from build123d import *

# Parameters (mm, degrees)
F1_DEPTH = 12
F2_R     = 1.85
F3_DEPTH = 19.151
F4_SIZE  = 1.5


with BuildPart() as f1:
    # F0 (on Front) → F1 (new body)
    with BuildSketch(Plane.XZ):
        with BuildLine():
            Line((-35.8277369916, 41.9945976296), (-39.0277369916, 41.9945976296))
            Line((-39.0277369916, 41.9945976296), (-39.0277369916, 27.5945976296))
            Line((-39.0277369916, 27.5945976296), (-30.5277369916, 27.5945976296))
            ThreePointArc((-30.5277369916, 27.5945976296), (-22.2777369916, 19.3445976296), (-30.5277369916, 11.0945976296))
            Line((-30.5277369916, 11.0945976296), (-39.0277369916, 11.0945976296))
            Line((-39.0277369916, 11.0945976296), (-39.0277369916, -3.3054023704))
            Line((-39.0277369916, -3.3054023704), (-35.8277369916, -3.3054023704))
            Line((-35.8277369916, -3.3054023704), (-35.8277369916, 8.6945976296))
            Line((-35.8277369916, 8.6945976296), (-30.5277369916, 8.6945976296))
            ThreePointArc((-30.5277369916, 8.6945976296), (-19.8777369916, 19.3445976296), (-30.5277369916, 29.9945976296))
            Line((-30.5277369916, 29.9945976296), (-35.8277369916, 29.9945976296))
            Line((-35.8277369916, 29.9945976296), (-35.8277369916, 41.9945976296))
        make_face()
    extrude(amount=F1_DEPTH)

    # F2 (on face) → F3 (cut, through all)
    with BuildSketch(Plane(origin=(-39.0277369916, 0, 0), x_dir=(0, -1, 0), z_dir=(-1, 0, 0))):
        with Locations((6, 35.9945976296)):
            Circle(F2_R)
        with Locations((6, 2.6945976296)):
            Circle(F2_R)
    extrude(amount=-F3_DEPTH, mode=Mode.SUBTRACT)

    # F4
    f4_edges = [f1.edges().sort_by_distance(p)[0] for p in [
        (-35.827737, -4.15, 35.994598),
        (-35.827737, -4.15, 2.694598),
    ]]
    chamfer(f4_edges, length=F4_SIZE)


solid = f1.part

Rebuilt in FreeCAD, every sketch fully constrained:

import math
import FreeCAD as App
import Part
import Sketcher


def edges_at(feature, points):
    """Names of the edges that pass closest to the given points."""
    edges = feature.Shape.Edges
    near = lambda p: min(range(len(edges)), key=lambda i: edges[i].distToShape(Part.Vertex(*p))[0])
    return sorted({f"Edge{near(p) + 1}" for p in points})

doc = App.newDocument("Part")
params = doc.addObject("Spreadsheet::Sheet", "Params")
for row, (alias, value) in enumerate([
    ("sketch1_height", "12 mm"),
    ("sketch1_radius", "8.25 mm"),
    ("sketch1_radius2", "10.65 mm"),
    ("sketch1_width", "3.2 mm"),
    ("sketch1_width2", "8.5 mm"),
    ("pad1_length", "12 mm"),
    ("sketch2_diameter", "3.7 mm"),
    ("chamfer_size", "1.5 mm"),
], start=1):
    params.set(f"A{row}", alias)
    params.set(f"B{row}", "=" + value)
    params.setAlias(f"B{row}", alias)

body = doc.addObject("PartDesign::Body", "Body")

# Sketch on XZ plane
sketch1 = body.newObject("Sketcher::SketchObject", "Sketch")
sketch1.AttachmentSupport = (doc.getObject("XZ_Plane"), [""])
sketch1.MapMode = "FlatFace"
sketch1.addGeometry([
    Part.LineSegment(App.Vector(-35.8, 42, 0), App.Vector(-39, 42, 0)),  # 0
    Part.LineSegment(App.Vector(-39, 42, 0), App.Vector(-39, 27.6, 0)),  # 1
    Part.LineSegment(App.Vector(-39, 27.6, 0), App.Vector(-30.5, 27.6, 0)),  # 2
    Part.ArcOfCircle(Part.Circle(App.Vector(-30.5, 19.3, 0), App.Vector(0, 0, 1), 8.2), math.radians(-90), math.radians(90)),  # 3
    Part.LineSegment(App.Vector(-30.5, 11.1, 0), App.Vector(-39, 11.1, 0)),  # 4
    Part.LineSegment(App.Vector(-39, 11.1, 0), App.Vector(-39, -3.3, 0)),  # 5
    Part.LineSegment(App.Vector(-39, -3.3, 0), App.Vector(-35.8, -3.3, 0)),  # 6
    Part.LineSegment(App.Vector(-35.8, -3.3, 0), App.Vector(-35.8, 8.7, 0)),  # 7
    Part.LineSegment(App.Vector(-35.8, 8.7, 0), App.Vector(-30.5, 8.7, 0)),  # 8
    Part.ArcOfCircle(Part.Circle(App.Vector(-30.5, 19.3, 0), App.Vector(0, 0, 1), 10.7), math.radians(-90), math.radians(90)),  # 9
    Part.LineSegment(App.Vector(-30.5, 30, 0), App.Vector(-35.8, 30, 0)),  # 10
    Part.LineSegment(App.Vector(-35.8, 30, 0), App.Vector(-35.8, 42, 0)),  # 11
], False)
sketch1.addConstraint([
    Sketcher.Constraint("Coincident", 0, 2, 1, 1),
    Sketcher.Constraint("Coincident", 1, 2, 2, 1),
    Sketcher.Constraint("Tangent", 2, 2, 3, 2),
    Sketcher.Constraint("Tangent", 3, 1, 4, 1),
    Sketcher.Constraint("Coincident", 4, 2, 5, 1),
    Sketcher.Constraint("Coincident", 5, 2, 6, 1),
    Sketcher.Constraint("Coincident", 6, 2, 7, 1),
    Sketcher.Constraint("Coincident", 7, 2, 8, 1),
    Sketcher.Constraint("Tangent", 8, 2, 9, 1),
    Sketcher.Constraint("Tangent", 9, 2, 10, 1),
    Sketcher.Constraint("Coincident", 10, 2, 11, 1),
    Sketcher.Constraint("Coincident", 11, 2, 0, 1),
    Sketcher.Constraint("Horizontal", 0),
    Sketcher.Constraint("Vertical", 1),
    Sketcher.Constraint("Horizontal", 2),
    Sketcher.Constraint("Horizontal", 4),
    Sketcher.Constraint("Vertical", 5),
    Sketcher.Constraint("Horizontal", 6),
    Sketcher.Constraint("Vertical", 7),
    Sketcher.Constraint("Horizontal", 8),
    Sketcher.Constraint("Horizontal", 10),
    Sketcher.Constraint("Vertical", 11),
    Sketcher.Constraint("Coincident", 9, 3, 3, 3),
    Sketcher.Constraint("Vertical", 1, 2, 4, 2),
    Sketcher.Constraint("Vertical", 7, 2, 10, 2),
    Sketcher.Constraint("Equal", 1, 5),
    Sketcher.Constraint("DistanceY", 7, 1, 7, 2, 12.0),
    Sketcher.Constraint("Radius", 3, 8.25),
    Sketcher.Constraint("Radius", 9, 10.65),
    Sketcher.Constraint("DistanceX", 0, 2, 0, 1, 3.2),
    Sketcher.Constraint("DistanceX", 2, 1, 2, 2, 8.5),
    Sketcher.Constraint("DistanceX", 3, 3, -1, 1, 30.527737),
    Sketcher.Constraint("DistanceY", -1, 1, 3, 3, 19.344598),
])
sketch1.setExpression("Constraints[26]", "Params.sketch1_height")
sketch1.setExpression("Constraints[27]", "Params.sketch1_radius")
sketch1.setExpression("Constraints[28]", "Params.sketch1_radius2")
sketch1.setExpression("Constraints[29]", "Params.sketch1_width")
sketch1.setExpression("Constraints[30]", "Params.sketch1_width2")
pad1 = body.newObject("PartDesign::Pad", "Pad")
pad1.Profile = sketch1
pad1.setExpression("Length", "Params.pad1_length")

# Sketch on YZ plane
sketch2 = body.newObject("Sketcher::SketchObject", "Sketch001")
sketch2.AttachmentSupport = (doc.getObject("YZ_Plane"), [""])
sketch2.MapMode = "FlatFace"
sketch2.AttachmentOffset = App.Placement(App.Vector(0, 0, -39.027737), App.Rotation())
sketch2.addGeometry([
    Part.Circle(App.Vector(-6, 36, 0), App.Vector(0, 0, 1), 1.9),
    Part.Circle(App.Vector(-6, 2.7, 0), App.Vector(0, 0, 1), 1.9),
], False)
sketch2.addConstraint([
    Sketcher.Constraint("Equal", 0, 1),
    Sketcher.Constraint("Vertical", 0, 3, 1, 3),
    Sketcher.Constraint("Diameter", 0, 3.7),
    Sketcher.Constraint("DistanceX", 0, 3, -1, 1, 6.0),
    Sketcher.Constraint("DistanceY", 1, 3, 0, 3, 33.3),
    Sketcher.Constraint("DistanceY", -1, 1, 0, 3, 35.994598),
])
sketch2.setExpression("Constraints[2]", "Params.sketch2_diameter")
pocket1 = body.newObject("PartDesign::Pocket", "Pocket")
pocket1.Profile = sketch2
pocket1.Type = "ThroughAll"
pocket1.Reversed = True
doc.recompute()

chamfer = body.newObject("PartDesign::Chamfer", "Chamfer")
chamfer.Base = (pocket1, edges_at(pocket1, [(-35.828, -4.15, 35.995), (-35.828, -4.15, 2.695)]))
chamfer.setExpression("Size", "Params.chamfer_size")

doc.recompute()
